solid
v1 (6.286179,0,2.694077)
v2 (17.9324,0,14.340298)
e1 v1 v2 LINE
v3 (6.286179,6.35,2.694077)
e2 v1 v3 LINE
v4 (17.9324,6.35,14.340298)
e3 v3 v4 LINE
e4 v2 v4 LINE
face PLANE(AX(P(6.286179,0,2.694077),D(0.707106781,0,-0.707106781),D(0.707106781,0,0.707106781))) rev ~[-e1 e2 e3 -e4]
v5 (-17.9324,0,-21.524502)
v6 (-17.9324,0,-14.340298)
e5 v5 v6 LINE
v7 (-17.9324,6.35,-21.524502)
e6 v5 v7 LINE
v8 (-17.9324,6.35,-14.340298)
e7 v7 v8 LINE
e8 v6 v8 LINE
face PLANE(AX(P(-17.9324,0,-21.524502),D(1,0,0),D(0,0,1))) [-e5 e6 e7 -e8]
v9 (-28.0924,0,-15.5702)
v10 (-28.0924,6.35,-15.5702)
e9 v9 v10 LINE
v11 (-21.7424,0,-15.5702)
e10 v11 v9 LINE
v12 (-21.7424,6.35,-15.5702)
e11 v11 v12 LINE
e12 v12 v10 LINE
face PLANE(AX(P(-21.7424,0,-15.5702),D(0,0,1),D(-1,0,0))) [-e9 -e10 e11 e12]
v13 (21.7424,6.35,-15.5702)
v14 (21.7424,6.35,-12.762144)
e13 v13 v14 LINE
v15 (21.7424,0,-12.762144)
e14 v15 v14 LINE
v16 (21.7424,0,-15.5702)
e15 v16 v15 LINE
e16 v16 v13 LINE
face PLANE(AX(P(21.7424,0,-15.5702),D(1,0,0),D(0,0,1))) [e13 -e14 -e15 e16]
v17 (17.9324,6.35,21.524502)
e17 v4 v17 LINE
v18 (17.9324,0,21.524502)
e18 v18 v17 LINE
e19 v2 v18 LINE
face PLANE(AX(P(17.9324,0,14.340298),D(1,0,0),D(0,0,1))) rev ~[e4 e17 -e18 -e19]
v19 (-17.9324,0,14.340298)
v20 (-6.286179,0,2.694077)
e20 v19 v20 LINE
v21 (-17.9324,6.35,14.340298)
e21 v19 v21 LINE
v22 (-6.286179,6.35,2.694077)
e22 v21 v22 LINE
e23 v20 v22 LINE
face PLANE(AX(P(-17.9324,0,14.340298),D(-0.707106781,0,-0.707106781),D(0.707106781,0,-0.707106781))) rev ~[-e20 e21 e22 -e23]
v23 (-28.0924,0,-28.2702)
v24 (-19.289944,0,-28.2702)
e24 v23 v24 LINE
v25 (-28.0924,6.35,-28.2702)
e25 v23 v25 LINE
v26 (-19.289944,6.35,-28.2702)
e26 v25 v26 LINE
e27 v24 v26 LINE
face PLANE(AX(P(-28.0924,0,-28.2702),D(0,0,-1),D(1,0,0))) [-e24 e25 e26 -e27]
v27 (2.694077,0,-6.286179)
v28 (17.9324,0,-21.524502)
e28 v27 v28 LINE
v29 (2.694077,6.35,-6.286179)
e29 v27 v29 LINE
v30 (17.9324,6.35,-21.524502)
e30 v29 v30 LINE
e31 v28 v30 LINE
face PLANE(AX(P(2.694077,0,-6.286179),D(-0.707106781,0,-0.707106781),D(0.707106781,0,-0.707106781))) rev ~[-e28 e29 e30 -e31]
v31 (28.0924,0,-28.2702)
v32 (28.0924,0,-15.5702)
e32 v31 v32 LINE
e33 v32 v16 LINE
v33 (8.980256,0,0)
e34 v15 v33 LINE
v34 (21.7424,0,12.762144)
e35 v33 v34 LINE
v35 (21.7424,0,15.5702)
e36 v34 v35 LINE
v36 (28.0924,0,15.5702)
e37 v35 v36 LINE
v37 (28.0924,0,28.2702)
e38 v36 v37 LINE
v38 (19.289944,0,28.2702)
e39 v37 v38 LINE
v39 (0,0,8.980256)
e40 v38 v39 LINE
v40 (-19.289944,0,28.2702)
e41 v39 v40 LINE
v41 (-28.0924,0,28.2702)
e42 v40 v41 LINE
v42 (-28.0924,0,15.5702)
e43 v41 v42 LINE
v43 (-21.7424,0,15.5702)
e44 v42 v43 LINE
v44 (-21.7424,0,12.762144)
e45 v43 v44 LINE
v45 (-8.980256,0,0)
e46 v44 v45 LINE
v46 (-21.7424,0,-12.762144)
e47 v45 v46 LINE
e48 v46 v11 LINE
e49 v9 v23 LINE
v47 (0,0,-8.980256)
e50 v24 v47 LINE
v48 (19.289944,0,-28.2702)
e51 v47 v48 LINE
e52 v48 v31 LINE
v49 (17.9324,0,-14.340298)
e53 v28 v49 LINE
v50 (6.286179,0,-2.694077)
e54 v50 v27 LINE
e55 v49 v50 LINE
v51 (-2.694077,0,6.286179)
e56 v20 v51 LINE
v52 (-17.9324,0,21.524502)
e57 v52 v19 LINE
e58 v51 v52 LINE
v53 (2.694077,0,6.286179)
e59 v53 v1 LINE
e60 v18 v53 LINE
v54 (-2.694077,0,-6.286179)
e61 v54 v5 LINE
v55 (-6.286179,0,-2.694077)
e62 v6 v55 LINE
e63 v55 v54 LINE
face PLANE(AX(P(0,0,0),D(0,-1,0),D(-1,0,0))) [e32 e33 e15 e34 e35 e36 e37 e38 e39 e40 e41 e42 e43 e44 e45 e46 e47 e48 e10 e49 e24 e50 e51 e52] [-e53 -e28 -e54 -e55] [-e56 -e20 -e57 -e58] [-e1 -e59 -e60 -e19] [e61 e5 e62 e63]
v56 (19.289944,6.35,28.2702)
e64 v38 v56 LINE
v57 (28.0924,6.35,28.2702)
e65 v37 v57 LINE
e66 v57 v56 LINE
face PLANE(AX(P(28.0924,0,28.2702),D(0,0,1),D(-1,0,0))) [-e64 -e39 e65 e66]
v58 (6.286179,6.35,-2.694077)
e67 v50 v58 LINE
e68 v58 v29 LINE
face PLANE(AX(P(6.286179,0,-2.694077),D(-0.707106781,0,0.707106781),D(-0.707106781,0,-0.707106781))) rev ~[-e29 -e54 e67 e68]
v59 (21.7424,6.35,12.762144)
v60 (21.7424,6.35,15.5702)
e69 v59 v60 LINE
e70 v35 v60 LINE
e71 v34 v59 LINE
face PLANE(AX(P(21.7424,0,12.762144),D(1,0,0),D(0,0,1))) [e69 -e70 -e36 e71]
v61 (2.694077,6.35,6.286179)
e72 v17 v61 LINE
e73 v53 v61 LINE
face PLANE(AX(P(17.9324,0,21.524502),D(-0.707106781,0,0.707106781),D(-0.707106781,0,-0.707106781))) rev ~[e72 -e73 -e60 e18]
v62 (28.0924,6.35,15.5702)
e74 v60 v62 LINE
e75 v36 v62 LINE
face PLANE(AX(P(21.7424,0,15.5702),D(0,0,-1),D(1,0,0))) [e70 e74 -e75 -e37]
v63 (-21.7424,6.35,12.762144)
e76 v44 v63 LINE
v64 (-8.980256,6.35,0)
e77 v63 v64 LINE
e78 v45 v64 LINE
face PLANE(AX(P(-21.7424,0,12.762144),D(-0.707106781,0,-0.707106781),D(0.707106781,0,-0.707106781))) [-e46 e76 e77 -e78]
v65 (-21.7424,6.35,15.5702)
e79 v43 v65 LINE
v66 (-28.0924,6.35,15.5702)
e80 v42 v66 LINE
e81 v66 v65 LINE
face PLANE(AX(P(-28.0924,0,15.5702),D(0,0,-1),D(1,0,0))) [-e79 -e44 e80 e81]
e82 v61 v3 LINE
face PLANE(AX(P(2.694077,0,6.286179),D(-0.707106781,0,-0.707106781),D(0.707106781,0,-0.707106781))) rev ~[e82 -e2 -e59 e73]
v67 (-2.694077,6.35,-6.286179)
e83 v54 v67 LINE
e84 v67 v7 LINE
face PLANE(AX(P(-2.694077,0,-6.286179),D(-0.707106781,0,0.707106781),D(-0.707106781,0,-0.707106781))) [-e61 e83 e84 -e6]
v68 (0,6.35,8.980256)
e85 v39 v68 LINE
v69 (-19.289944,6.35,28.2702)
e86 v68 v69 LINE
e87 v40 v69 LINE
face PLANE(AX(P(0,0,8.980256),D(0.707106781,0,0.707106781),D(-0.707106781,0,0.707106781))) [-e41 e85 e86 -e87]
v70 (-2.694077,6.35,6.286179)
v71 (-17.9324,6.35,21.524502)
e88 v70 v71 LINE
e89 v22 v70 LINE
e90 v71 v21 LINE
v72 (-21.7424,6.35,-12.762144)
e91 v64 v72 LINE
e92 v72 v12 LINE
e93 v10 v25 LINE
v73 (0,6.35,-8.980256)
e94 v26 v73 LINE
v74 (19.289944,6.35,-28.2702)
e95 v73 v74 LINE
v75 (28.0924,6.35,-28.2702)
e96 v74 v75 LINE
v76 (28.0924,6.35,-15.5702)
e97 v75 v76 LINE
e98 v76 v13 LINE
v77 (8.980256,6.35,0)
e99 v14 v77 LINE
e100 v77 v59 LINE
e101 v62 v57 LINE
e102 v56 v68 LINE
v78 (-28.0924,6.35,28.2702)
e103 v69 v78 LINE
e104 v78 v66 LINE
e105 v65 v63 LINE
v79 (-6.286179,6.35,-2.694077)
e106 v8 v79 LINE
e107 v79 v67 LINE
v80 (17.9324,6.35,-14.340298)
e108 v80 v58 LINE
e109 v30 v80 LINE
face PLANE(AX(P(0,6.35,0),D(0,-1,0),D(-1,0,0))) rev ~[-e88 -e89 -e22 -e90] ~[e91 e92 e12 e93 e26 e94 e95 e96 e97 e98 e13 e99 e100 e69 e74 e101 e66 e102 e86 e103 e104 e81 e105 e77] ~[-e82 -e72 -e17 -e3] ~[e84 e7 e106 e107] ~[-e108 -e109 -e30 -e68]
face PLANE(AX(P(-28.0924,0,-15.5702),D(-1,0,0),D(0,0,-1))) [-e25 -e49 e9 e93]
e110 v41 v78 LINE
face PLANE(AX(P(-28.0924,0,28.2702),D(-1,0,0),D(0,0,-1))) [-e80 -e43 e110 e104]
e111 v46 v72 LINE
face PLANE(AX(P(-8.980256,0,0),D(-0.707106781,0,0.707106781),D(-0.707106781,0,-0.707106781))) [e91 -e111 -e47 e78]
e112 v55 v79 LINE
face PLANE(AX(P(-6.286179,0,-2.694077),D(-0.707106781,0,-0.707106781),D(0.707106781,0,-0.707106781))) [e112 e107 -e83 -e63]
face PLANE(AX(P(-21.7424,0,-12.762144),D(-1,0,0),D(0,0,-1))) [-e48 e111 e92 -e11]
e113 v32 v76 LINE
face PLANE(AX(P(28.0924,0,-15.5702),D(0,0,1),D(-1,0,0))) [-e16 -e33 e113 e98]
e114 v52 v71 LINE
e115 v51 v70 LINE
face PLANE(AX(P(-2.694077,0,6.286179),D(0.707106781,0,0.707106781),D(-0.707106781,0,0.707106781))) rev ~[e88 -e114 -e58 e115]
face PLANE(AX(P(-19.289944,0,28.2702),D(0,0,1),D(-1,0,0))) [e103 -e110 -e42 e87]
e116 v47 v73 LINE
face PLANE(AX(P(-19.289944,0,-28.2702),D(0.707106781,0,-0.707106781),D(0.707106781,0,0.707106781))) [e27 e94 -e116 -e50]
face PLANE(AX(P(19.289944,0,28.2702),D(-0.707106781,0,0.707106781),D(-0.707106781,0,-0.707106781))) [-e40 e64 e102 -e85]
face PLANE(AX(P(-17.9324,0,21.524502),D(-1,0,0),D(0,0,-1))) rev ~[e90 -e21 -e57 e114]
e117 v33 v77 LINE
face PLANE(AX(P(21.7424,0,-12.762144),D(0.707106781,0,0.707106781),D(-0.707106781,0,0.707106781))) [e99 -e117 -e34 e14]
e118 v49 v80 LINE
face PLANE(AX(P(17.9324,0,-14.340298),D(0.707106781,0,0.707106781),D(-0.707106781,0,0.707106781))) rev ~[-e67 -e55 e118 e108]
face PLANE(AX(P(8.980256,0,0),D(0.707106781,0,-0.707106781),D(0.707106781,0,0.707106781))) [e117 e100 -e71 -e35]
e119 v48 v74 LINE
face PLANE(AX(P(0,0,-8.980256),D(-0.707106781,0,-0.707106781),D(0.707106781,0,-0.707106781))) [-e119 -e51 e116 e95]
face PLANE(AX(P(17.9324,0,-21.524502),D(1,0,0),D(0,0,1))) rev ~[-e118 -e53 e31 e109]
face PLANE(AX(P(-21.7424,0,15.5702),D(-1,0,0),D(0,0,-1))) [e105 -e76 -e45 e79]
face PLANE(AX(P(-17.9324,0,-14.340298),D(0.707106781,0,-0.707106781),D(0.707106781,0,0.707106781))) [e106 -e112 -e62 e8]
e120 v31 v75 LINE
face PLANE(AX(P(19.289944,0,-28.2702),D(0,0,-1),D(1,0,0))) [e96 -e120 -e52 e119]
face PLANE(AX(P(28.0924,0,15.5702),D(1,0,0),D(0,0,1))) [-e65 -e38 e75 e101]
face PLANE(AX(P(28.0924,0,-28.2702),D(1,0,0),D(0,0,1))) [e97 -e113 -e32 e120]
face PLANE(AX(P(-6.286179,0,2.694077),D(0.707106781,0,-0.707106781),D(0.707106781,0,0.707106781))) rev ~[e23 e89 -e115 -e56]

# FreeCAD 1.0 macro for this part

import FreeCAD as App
import Part
import Sketcher

V = App.Vector
Q = App.Units.Quantity

doc = App.newDocument("Part")
body = doc.addObject("PartDesign::Body", "Body")

# Sketch on XZ plane
sketch1 = doc.addObject("Sketcher::SketchObject", "Sketch")
body.addObject(sketch1)
sketch1.AttachmentSupport = (doc.XZ_Plane, [""])
sketch1.MapMode = "FlatFace"
sketch1.addGeometry([
    Part.LineSegment(V(-28.0924, -28.2702, 0), V(-28.0924, -15.5702, 0)),  # 0
    Part.LineSegment(V(-28.0924, -15.5702, 0), V(-21.7424, -15.5702, 0)),  # 1
    Part.LineSegment(V(-21.7424, -15.5702, 0), V(-21.7424, -12.762144, 0)),  # 2
    Part.LineSegment(V(-21.7424, -12.762144, 0), V(-8.980256, 0, 0)),  # 3
    Part.LineSegment(V(-8.980256, 0, 0), V(-21.7424, 12.762144, 0)),  # 4
    Part.LineSegment(V(-21.7424, 12.762144, 0), V(-21.7424, 15.5702, 0)),  # 5
    Part.LineSegment(V(-21.7424, 15.5702, 0), V(-28.0924, 15.5702, 0)),  # 6
    Part.LineSegment(V(-28.0924, 15.5702, 0), V(-28.0924, 28.2702, 0)),  # 7
    Part.LineSegment(V(-28.0924, 28.2702, 0), V(-19.289944, 28.2702, 0)),  # 8
    Part.LineSegment(V(-19.289944, 28.2702, 0), V(0, 8.980256, 0)),  # 9
    Part.LineSegment(V(0, 8.980256, 0), V(19.289944, 28.2702, 0)),  # 10
    Part.LineSegment(V(19.289944, 28.2702, 0), V(28.0924, 28.2702, 0)),  # 11
    Part.LineSegment(V(28.0924, 28.2702, 0), V(28.0924, 15.5702, 0)),  # 12
    Part.LineSegment(V(28.0924, 15.5702, 0), V(21.7424, 15.5702, 0)),  # 13
    Part.LineSegment(V(21.7424, 15.5702, 0), V(21.7424, 12.762144, 0)),  # 14
    Part.LineSegment(V(21.7424, 12.762144, 0), V(8.980256, 0, 0)),  # 15
    Part.LineSegment(V(8.980256, 0, 0), V(21.7424, -12.762144, 0)),  # 16
    Part.LineSegment(V(21.7424, -12.762144, 0), V(21.7424, -15.5702, 0)),  # 17
    Part.LineSegment(V(21.7424, -15.5702, 0), V(28.0924, -15.5702, 0)),  # 18
    Part.LineSegment(V(28.0924, -15.5702, 0), V(28.0924, -28.2702, 0)),  # 19
    Part.LineSegment(V(28.0924, -28.2702, 0), V(19.289944, -28.2702, 0)),  # 20
    Part.LineSegment(V(19.289944, -28.2702, 0), V(0, -8.980256, 0)),  # 21
    Part.LineSegment(V(0, -8.980256, 0), V(-19.289944, -28.2702, 0)),  # 22
    Part.LineSegment(V(-19.289944, -28.2702, 0), V(-28.0924, -28.2702, 0)),  # 23
    Part.LineSegment(V(2.694077, 6.286179, 0), V(6.286179, 2.694077, 0)),  # 24
    Part.LineSegment(V(6.286179, 2.694077, 0), V(17.9324, 14.340298, 0)),  # 25
    Part.LineSegment(V(17.9324, 14.340298, 0), V(17.9324, 21.524502, 0)),  # 26
    Part.LineSegment(V(17.9324, 21.524502, 0), V(2.694077, 6.286179, 0)),  # 27
    Part.LineSegment(V(-6.286179, 2.694077, 0), V(-2.694077, 6.286179, 0)),  # 28
    Part.LineSegment(V(-2.694077, 6.286179, 0), V(-17.9324, 21.524502, 0)),  # 29
    Part.LineSegment(V(-17.9324, 21.524502, 0), V(-17.9324, 14.340298, 0)),  # 30
    Part.LineSegment(V(-17.9324, 14.340298, 0), V(-6.286179, 2.694077, 0)),  # 31
    Part.LineSegment(V(6.286179, -2.694077, 0), V(2.694077, -6.286179, 0)),  # 32
    Part.LineSegment(V(2.694077, -6.286179, 0), V(17.9324, -21.524502, 0)),  # 33
    Part.LineSegment(V(17.9324, -21.524502, 0), V(17.9324, -14.340298, 0)),  # 34
    Part.LineSegment(V(17.9324, -14.340298, 0), V(6.286179, -2.694077, 0)),  # 35
    Part.LineSegment(V(-6.286179, -2.694077, 0), V(-17.9324, -14.340298, 0)),  # 36
    Part.LineSegment(V(-17.9324, -14.340298, 0), V(-17.9324, -21.524502, 0)),  # 37
    Part.LineSegment(V(-17.9324, -21.524502, 0), V(-2.694077, -6.286179, 0)),  # 38
    Part.LineSegment(V(-2.694077, -6.286179, 0), V(-6.286179, -2.694077, 0)),  # 39
], False)
sketch1.addConstraint([
    Sketcher.Constraint("Coincident", 0, 2, 1, 1),
    Sketcher.Constraint("Coincident", 1, 2, 2, 1),
    Sketcher.Constraint("Coincident", 2, 2, 3, 1),
    Sketcher.Constraint("Coincident", 3, 2, 4, 1),
    Sketcher.Constraint("Coincident", 4, 2, 5, 1),
    Sketcher.Constraint("Coincident", 5, 2, 6, 1),
    Sketcher.Constraint("Coincident", 6, 2, 7, 1),
    Sketcher.Constraint("Coincident", 7, 2, 8, 1),
    Sketcher.Constraint("Coincident", 8, 2, 9, 1),
    Sketcher.Constraint("Coincident", 9, 2, 10, 1),
    Sketcher.Constraint("Coincident", 10, 2, 11, 1),
    Sketcher.Constraint("Coincident", 11, 2, 12, 1),
    Sketcher.Constraint("Coincident", 12, 2, 13, 1),
    Sketcher.Constraint("Coincident", 13, 2, 14, 1),
    Sketcher.Constraint("Coincident", 14, 2, 15, 1),
    Sketcher.Constraint("Coincident", 15, 2, 16, 1),
    Sketcher.Constraint("Coincident", 16, 2, 17, 1),
    Sketcher.Constraint("Coincident", 17, 2, 18, 1),
    Sketcher.Constraint("Coincident", 18, 2, 19, 1),
    Sketcher.Constraint("Coincident", 19, 2, 20, 1),
    Sketcher.Constraint("Coincident", 20, 2, 21, 1),
    Sketcher.Constraint("Coincident", 21, 2, 22, 1),
    Sketcher.Constraint("Coincident", 22, 2, 23, 1),
    Sketcher.Constraint("Coincident", 23, 2, 0, 1),
    Sketcher.Constraint("Coincident", 24, 2, 25, 1),
    Sketcher.Constraint("Coincident", 25, 2, 26, 1),
    Sketcher.Constraint("Coincident", 26, 2, 27, 1),
    Sketcher.Constraint("Coincident", 27, 2, 24, 1),
    Sketcher.Constraint("Coincident", 28, 2, 29, 1),
    Sketcher.Constraint("Coincident", 29, 2, 30, 1),
    Sketcher.Constraint("Coincident", 30, 2, 31, 1),
    Sketcher.Constraint("Coincident", 31, 2, 28, 1),
    Sketcher.Constraint("Coincident", 32, 2, 33, 1),
    Sketcher.Constraint("Coincident", 33, 2, 34, 1),
    Sketcher.Constraint("Coincident", 34, 2, 35, 1),
    Sketcher.Constraint("Coincident", 35, 2, 32, 1),
    Sketcher.Constraint("Coincident", 36, 2, 37, 1),
    Sketcher.Constraint("Coincident", 37, 2, 38, 1),
    Sketcher.Constraint("Coincident", 38, 2, 39, 1),
    Sketcher.Constraint("Coincident", 39, 2, 36, 1),
    Sketcher.Constraint("Vertical", 0),
    Sketcher.Constraint("Horizontal", 1),
    Sketcher.Constraint("Vertical", 2),
    Sketcher.Constraint("Vertical", 5),
    Sketcher.Constraint("Horizontal", 6),
    Sketcher.Constraint("Vertical", 7),
    Sketcher.Constraint("Horizontal", 8),
    Sketcher.Constraint("Horizontal", 11),
    Sketcher.Constraint("Vertical", 12),
    Sketcher.Constraint("Horizontal", 13),
    Sketcher.Constraint("Vertical", 14),
    Sketcher.Constraint("Vertical", 17),
    Sketcher.Constraint("Horizontal", 18),
    Sketcher.Constraint("Vertical", 19),
    Sketcher.Constraint("Horizontal", 20),
    Sketcher.Constraint("Horizontal", 23),
    Sketcher.Constraint("Vertical", 26),
    Sketcher.Constraint("Vertical", 30),
    Sketcher.Constraint("Vertical", 34),
    Sketcher.Constraint("Vertical", 37),
    Sketcher.Constraint("Symmetric", 0, 2, 12, 2, -1, 1),
    Sketcher.Constraint("Symmetric", 2, 2, 14, 2, -1, 1),
    Sketcher.Constraint("Symmetric", 3, 2, 15, 2, -1, 1),
    Sketcher.Constraint("Symmetric", 4, 2, 16, 2, -1, 1),
    Sketcher.Constraint("Symmetric", 6, 2, 18, 2, -1, 1),
    Sketcher.Constraint("Symmetric", 8, 2, 20, 2, -1, 1),
    Sketcher.Constraint("Symmetric", 9, 2, 21, 2, -1, 1),
    Sketcher.Constraint("Symmetric", 10, 2, 22, 2, -1, 1),
    Sketcher.Constraint("Symmetric", 28, 2, 32, 2, -1, 1),
    Sketcher.Constraint("Symmetric", 29, 2, 33, 2, -1, 1),
    Sketcher.Constraint("Symmetric", 31, 2, 35, 2, -1, 1),
    Sketcher.Constraint("Symmetric", 25, 2, 36, 2, -1, 1),
    Sketcher.Constraint("Symmetric", 27, 2, 38, 2, -1, 1),
    Sketcher.Constraint("Symmetric", 24, 2, 39, 2, -1, 1),
    Sketcher.Constraint("Symmetric", 8, 2, 10, 2, -2),
    Sketcher.Constraint("Symmetric", 6, 2, 12, 2, -2),
    Sketcher.Constraint("Symmetric", 4, 2, 14, 2, -2),
    Sketcher.Constraint("Symmetric", 27, 2, 28, 2, -2),
    Sketcher.Constraint("Symmetric", 26, 2, 29, 2, -2),
    Sketcher.Constraint("Symmetric", 24, 2, 31, 2, -2),
    Sketcher.Constraint("PointOnObject", 3, 2, -1),
    Sketcher.Constraint("PointOnObject", 9, 2, -2),
    Sketcher.Constraint("Perpendicular", 3, 4),
    Sketcher.Constraint("Parallel", 4, 9),
    Sketcher.Constraint("Perpendicular", 22, 24),
    Sketcher.Constraint("Perpendicular", 24, 25),
    Sketcher.Constraint("Parallel", 25, 27),
    Sketcher.Constraint("Parallel", 29, 31),
    Sketcher.Constraint("Parallel", 33, 35),
    Sketcher.Constraint("Parallel", 36, 38),
    Sketcher.Constraint("DistanceY", 0, 1, 0, 2, Q("0.5 in")),
    Sketcher.Constraint("Distance", 24, Q("0.2 in")),
    Sketcher.Constraint("DistanceX", 1, 1, 1, 2, Q("0.25 in")),
    Sketcher.Constraint("DistanceX", 25, 2, 12, 2, Q("0.4 in")),
    Sketcher.Constraint("DistanceX", 0, 2, -1, 1, Q("1.106 in")),
    Sketcher.Constraint("DistanceY", 0, 2, -1, 1, Q("0.613 in")),
    Sketcher.Constraint("DistanceX", 3, 2, 10, 2, Q("1.113 in")),
    Sketcher.Constraint("Distance", 9, Q("27.2801 mm")),
    Sketcher.Constraint("DistanceX", -1, 1, 24, 2, Q("6.286179 mm")),
    Sketcher.Constraint("DistanceY", -1, 1, 27, 2, Q("6.286179 mm")),
])
pad1 = doc.addObject("PartDesign::Pad", "Pad")
body.addObject(pad1)
pad1.Profile = sketch1
pad1.Length = Q("0.25 in")
pad1.Reversed = True

doc.recompute()
